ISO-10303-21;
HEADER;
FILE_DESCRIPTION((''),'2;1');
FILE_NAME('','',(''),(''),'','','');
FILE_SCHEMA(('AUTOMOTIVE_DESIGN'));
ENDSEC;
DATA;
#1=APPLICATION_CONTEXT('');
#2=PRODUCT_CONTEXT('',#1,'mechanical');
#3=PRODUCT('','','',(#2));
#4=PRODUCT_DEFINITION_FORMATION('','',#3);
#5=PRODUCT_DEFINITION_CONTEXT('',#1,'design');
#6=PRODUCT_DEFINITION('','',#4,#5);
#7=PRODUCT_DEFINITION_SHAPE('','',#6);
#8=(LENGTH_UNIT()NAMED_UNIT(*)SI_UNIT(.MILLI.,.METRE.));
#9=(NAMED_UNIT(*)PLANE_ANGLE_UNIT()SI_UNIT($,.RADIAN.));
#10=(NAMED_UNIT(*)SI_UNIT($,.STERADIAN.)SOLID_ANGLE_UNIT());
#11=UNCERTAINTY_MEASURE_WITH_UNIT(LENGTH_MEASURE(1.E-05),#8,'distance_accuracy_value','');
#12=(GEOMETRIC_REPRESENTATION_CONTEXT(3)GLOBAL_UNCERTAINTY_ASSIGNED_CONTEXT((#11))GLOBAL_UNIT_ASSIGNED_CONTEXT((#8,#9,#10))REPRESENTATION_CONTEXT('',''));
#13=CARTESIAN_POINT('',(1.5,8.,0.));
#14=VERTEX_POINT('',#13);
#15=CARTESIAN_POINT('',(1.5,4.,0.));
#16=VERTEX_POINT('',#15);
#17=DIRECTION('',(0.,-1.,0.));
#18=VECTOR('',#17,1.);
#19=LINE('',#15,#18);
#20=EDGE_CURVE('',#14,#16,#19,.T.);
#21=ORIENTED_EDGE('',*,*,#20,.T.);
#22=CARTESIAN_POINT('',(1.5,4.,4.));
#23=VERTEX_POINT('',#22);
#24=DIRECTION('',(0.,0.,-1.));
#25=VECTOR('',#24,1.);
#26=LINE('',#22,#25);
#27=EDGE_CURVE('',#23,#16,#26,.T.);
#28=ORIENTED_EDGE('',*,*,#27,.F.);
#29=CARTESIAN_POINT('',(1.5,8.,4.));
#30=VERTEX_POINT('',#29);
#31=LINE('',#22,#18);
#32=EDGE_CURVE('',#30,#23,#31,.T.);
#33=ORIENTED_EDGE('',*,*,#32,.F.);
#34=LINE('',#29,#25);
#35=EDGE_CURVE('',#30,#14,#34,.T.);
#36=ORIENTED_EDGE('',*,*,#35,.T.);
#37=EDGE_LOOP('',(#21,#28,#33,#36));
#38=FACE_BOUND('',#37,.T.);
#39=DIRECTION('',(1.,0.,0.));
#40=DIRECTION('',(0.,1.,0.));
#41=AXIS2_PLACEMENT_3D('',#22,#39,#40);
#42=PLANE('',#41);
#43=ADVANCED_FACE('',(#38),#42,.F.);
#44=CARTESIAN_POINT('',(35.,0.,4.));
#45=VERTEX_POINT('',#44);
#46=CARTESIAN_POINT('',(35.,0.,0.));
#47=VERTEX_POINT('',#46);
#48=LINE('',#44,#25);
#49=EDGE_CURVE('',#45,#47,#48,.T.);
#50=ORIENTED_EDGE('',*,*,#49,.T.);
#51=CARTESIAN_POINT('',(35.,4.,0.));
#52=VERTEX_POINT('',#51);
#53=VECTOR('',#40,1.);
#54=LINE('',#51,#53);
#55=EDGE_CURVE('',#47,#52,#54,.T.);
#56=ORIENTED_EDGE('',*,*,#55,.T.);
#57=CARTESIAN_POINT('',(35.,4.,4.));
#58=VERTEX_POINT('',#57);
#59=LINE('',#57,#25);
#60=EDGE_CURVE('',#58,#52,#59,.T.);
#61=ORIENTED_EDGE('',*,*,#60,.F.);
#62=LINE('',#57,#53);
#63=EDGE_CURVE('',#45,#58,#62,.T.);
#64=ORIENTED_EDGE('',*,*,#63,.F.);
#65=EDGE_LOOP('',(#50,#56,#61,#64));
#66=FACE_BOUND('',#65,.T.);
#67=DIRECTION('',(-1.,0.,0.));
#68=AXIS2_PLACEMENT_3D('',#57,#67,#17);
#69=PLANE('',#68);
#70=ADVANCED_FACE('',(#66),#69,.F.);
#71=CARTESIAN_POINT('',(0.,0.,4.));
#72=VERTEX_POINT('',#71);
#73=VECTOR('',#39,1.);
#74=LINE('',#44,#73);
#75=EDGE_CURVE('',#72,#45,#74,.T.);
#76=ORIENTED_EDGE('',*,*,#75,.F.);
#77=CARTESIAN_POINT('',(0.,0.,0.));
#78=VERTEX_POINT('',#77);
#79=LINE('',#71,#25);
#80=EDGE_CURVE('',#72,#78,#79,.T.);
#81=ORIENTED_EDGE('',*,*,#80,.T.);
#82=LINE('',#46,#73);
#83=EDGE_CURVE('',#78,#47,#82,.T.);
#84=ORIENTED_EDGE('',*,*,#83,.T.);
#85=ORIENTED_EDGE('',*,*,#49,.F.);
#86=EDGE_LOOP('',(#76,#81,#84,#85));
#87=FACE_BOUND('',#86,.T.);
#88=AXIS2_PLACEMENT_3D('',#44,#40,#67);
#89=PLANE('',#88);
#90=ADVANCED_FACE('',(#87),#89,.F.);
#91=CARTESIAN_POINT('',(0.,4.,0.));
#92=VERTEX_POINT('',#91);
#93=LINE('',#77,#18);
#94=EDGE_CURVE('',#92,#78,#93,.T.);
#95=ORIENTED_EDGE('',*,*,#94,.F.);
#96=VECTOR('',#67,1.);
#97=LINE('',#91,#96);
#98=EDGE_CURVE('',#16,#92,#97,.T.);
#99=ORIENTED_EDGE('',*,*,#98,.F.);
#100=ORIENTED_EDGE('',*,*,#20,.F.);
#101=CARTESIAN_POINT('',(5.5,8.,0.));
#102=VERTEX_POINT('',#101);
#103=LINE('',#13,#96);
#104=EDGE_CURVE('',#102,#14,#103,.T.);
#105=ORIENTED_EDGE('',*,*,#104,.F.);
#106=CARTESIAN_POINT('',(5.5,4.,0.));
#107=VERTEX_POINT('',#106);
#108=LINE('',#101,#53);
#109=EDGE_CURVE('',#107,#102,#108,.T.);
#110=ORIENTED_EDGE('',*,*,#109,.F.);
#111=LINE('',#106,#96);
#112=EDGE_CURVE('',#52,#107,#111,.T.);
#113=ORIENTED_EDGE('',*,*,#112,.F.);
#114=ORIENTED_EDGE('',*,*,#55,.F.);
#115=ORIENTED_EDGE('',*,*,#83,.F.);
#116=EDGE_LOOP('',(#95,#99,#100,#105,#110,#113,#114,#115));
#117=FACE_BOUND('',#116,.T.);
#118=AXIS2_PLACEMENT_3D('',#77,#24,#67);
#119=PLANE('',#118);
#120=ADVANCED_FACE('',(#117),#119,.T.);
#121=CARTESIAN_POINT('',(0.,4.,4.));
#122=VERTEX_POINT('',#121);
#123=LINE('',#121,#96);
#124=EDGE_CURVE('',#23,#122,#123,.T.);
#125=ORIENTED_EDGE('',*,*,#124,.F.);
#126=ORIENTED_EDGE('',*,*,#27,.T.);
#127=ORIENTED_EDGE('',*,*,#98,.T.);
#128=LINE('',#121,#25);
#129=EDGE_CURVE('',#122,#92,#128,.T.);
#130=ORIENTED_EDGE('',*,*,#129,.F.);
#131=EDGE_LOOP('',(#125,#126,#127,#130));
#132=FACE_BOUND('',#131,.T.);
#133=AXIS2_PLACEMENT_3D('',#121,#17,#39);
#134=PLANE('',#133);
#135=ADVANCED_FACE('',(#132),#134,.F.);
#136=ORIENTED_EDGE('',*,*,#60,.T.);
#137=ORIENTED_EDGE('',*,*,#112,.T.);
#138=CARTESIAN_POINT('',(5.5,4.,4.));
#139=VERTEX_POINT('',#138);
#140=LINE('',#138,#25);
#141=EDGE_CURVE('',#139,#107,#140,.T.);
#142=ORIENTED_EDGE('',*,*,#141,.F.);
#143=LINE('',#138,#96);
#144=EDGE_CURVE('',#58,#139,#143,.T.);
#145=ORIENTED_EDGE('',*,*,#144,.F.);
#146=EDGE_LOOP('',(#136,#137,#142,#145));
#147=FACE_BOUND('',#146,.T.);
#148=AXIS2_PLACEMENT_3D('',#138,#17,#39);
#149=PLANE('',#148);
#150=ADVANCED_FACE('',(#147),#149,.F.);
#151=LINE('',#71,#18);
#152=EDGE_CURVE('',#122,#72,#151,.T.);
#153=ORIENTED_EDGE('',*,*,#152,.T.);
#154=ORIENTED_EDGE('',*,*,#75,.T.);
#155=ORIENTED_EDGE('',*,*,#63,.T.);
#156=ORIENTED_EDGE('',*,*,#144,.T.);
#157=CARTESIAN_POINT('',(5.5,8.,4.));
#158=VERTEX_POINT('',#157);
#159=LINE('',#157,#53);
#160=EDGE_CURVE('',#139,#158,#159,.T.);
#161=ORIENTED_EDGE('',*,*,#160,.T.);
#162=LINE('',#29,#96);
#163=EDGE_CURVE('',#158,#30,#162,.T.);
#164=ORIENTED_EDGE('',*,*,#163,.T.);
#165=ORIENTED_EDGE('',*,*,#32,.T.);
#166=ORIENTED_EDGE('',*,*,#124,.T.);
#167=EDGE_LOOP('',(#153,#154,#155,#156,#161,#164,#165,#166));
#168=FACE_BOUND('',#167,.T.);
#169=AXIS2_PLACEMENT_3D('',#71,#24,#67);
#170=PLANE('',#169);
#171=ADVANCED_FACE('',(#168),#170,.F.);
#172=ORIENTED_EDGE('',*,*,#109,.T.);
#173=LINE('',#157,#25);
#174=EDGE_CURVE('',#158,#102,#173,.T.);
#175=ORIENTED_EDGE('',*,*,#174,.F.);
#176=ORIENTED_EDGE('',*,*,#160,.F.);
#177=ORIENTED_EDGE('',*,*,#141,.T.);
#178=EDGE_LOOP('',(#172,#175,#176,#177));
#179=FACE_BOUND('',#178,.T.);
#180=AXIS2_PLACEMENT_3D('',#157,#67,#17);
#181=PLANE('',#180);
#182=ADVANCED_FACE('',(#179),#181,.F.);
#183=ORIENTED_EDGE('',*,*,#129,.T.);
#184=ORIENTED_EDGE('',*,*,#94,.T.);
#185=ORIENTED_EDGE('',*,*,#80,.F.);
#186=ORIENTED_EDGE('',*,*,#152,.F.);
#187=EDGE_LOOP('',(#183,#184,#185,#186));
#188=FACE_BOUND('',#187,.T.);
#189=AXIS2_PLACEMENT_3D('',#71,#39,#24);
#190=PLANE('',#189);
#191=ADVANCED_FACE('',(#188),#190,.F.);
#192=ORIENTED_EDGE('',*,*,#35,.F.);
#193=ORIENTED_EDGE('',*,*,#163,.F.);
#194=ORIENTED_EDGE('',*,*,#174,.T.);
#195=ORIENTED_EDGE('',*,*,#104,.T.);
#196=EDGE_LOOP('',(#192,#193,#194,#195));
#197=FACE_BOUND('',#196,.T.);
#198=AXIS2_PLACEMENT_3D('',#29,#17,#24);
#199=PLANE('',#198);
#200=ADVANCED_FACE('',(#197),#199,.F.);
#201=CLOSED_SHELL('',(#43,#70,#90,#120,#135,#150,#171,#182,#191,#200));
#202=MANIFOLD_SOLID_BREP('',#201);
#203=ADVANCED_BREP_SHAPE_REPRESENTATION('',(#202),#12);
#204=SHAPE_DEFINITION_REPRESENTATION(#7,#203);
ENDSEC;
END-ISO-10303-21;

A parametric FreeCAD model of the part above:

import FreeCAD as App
import Part
import Sketcher


def add_polygon(sketch, points):
    """Adds a closed chain of lines whose ends are joined by coincident constraints."""
    first, n = sketch.GeometryCount, len(points)
    for a, b in zip(points, points[1:] + points[:1]):
        sketch.addGeometry(Part.LineSegment(App.Vector(*a, 0), App.Vector(*b, 0)), False)
    for i in range(n):
        sketch.addConstraint(Sketcher.Constraint("Coincident", first + i, 2, first + (i + 1) % n, 1))

doc = App.newDocument("Part")
params = doc.addObject("Spreadsheet::Sheet", "Params")
for row, (alias, value) in enumerate([
    ("sketch1_width", "35 mm"),
    ("sketch1_width2", "4 mm"),
    ("sketch1_width3", "29.5 mm"),
    ("pad1_length", "4 mm"),
], start=1):
    params.set(f"A{row}", alias)
    params.set(f"B{row}", "=" + value)
    params.setAlias(f"B{row}", alias)

body = doc.addObject("PartDesign::Body", "Body")

# Sketch on XY plane
sketch1 = body.newObject("Sketcher::SketchObject", "Sketch")
sketch1.AttachmentSupport = (doc.getObject("XY_Plane"), [""])
sketch1.MapMode = "FlatFace"
add_polygon(sketch1, [(0, 4), (0, 0), (35, 0), (35, 4), (5.5, 4), (5.5, 8), (1.5, 8), (1.5, 4)])  # lines 0-7
sketch1.addConstraint([
    Sketcher.Constraint("Vertical", 0),
    Sketcher.Constraint("Horizontal", 1),
    Sketcher.Constraint("Vertical", 2),
    Sketcher.Constraint("Horizontal", 3),
    Sketcher.Constraint("Vertical", 4),
    Sketcher.Constraint("Horizontal", 5),
    Sketcher.Constraint("Vertical", 6),
    Sketcher.Constraint("Horizontal", 7),
    Sketcher.Constraint("Coincident", 0, 2, -1, 1),
    Sketcher.Constraint("Horizontal", 3, 2, 6, 2),
    Sketcher.Constraint("Equal", 5, 0),
    Sketcher.Constraint("Equal", 2, 4),
    Sketcher.Constraint("DistanceX", 1, 1, 1, 2, 35.0),
    Sketcher.Constraint("DistanceX", 5, 2, 5, 1, 4.0),
    Sketcher.Constraint("DistanceX", 3, 2, 3, 1, 29.5),
])
sketch1.setExpression("Constraints[20]", "Params.sketch1_width")
sketch1.setExpression("Constraints[21]", "Params.sketch1_width2")
sketch1.setExpression("Constraints[22]", "Params.sketch1_width3")
pad1 = body.newObject("PartDesign::Pad", "Pad")
pad1.Profile = sketch1
pad1.setExpression("Length", "Params.pad1_length")

doc.recompute()
